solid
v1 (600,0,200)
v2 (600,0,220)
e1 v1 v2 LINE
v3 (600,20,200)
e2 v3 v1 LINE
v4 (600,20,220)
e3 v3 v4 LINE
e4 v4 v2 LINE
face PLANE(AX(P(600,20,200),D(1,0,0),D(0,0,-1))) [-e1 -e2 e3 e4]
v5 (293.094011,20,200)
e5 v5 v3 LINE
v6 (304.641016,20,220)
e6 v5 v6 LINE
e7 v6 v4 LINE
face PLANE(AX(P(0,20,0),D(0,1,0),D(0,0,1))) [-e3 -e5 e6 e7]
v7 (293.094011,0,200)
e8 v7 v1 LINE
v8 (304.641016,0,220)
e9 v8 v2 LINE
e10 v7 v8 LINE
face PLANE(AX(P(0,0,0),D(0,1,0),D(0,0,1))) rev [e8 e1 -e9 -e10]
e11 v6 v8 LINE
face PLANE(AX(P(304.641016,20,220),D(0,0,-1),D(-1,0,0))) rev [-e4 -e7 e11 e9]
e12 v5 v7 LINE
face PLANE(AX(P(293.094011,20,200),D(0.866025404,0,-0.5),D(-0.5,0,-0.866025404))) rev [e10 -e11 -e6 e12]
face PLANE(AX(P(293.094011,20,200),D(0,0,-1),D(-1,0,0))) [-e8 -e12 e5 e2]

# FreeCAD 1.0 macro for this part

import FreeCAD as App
import Part
import Sketcher
from FreeCAD import Vector
Q = App.Units.Quantity


def add_polygon(sketch, points):
    """Adds a closed chain of lines whose ends are joined by coincident constraints."""
    first, n = sketch.GeometryCount, len(points)
    for a, b in zip(points, points[1:] + points[:1]):
        sketch.addGeometry(Part.LineSegment(App.Vector(*a, 0), App.Vector(*b, 0)), False)
    for i in range(n):
        sketch.addConstraint(Sketcher.Constraint("Coincident", first + i, 2, first + (i + 1) % n, 1))

doc = App.newDocument("Part")
body = doc.addObject("PartDesign::Body", "Body")

# Sketch on XZ plane
sketch1 = body.newObject("Sketcher::SketchObject", "Sketch")
sketch1.AttachmentSupport = (doc.getObject("XZ_Plane"), [""])
sketch1.MapMode = "FlatFace"
add_polygon(sketch1, [(600, 200), (293.094011, 200), (304.641016, 220), (600, 220)])  # lines 0-3
sketch1.addConstraint([
    Sketcher.Constraint("Horizontal", 0),
    Sketcher.Constraint("Horizontal", 2),
    Sketcher.Constraint("Vertical", 3),
    Sketcher.Constraint("DistanceY", 3, 2, 3, 1, Q("20 mm")),
    Sketcher.Constraint("Angle", 1, Q("60 deg")),
    Sketcher.Constraint("DistanceY", -1, 1, 0, 2, Q("200 mm")),
    Sketcher.Constraint("DistanceX", -1, 1, 2, 2, Q("600 mm")),
    Sketcher.Constraint("DistanceX", 0, 2, 0, 1, Q("306.905989 mm")),
])
pad1 = body.newObject("PartDesign::Pad", "Pad")
pad1.Profile = sketch1
pad1.Length = 20
pad1.Reversed = True

doc.recompute()
